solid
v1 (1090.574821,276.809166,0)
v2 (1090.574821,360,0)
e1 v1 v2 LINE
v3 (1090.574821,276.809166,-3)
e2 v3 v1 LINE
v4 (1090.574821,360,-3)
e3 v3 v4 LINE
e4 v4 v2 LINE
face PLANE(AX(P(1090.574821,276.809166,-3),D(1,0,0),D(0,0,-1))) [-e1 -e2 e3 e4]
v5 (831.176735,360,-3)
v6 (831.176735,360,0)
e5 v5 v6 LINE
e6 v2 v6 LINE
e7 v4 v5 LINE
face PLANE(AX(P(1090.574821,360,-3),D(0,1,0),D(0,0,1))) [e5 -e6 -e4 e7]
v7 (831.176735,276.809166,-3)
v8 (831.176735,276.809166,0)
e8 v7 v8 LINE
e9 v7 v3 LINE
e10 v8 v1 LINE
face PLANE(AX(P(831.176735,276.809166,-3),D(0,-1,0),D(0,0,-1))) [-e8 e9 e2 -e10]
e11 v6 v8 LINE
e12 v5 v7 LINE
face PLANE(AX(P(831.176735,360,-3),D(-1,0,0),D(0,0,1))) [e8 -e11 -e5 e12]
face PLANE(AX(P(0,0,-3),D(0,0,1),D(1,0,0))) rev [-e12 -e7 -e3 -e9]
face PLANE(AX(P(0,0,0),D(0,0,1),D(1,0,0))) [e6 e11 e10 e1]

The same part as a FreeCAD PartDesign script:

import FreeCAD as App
import Part
import Sketcher

V = App.Vector

doc = App.newDocument("Part")
body = doc.addObject("PartDesign::Body", "Body")

# Sketch on XY plane
sketch1 = doc.addObject("Sketcher::SketchObject", "Sketch")
body.addObject(sketch1)
sketch1.AttachmentSupport = (doc.XY_Plane, [""])
sketch1.MapMode = "FlatFace"
sketch1.addGeometry([
    Part.LineSegment(V(831, 360, 0), V(831, 277, 0)),
    Part.LineSegment(V(831, 277, 0), V(1091, 277, 0)),
    Part.LineSegment(V(1091, 277, 0), V(1091, 360, 0)),
    Part.LineSegment(V(1091, 360, 0), V(831, 360, 0)),
], False)
sketch1.addConstraint([
    Sketcher.Constraint("Coincident", 0, 2, 1, 1),
    Sketcher.Constraint("Coincident", 1, 2, 2, 1),
    Sketcher.Constraint("Coincident", 2, 2, 3, 1),
    Sketcher.Constraint("Coincident", 3, 2, 0, 1),
    Sketcher.Constraint("Vertical", 0),
    Sketcher.Constraint("Horizontal", 1),
    Sketcher.Constraint("Vertical", 2),
    Sketcher.Constraint("Horizontal", 3),
    Sketcher.Constraint("DistanceY", -1, 1, 2, 2, 360.0),
    Sketcher.Constraint("DistanceX", 1, 1, 1, 2, 259.398087),
    Sketcher.Constraint("DistanceY", 0, 2, 0, 1, 83.190834),
    Sketcher.Constraint("DistanceX", -1, 1, 1, 2, 1090.574821),
])
pad1 = doc.addObject("PartDesign::Pad", "Pad")
body.addObject(pad1)
pad1.Profile = sketch1
pad1.Length = 3
pad1.Reversed = True

doc.recompute()
